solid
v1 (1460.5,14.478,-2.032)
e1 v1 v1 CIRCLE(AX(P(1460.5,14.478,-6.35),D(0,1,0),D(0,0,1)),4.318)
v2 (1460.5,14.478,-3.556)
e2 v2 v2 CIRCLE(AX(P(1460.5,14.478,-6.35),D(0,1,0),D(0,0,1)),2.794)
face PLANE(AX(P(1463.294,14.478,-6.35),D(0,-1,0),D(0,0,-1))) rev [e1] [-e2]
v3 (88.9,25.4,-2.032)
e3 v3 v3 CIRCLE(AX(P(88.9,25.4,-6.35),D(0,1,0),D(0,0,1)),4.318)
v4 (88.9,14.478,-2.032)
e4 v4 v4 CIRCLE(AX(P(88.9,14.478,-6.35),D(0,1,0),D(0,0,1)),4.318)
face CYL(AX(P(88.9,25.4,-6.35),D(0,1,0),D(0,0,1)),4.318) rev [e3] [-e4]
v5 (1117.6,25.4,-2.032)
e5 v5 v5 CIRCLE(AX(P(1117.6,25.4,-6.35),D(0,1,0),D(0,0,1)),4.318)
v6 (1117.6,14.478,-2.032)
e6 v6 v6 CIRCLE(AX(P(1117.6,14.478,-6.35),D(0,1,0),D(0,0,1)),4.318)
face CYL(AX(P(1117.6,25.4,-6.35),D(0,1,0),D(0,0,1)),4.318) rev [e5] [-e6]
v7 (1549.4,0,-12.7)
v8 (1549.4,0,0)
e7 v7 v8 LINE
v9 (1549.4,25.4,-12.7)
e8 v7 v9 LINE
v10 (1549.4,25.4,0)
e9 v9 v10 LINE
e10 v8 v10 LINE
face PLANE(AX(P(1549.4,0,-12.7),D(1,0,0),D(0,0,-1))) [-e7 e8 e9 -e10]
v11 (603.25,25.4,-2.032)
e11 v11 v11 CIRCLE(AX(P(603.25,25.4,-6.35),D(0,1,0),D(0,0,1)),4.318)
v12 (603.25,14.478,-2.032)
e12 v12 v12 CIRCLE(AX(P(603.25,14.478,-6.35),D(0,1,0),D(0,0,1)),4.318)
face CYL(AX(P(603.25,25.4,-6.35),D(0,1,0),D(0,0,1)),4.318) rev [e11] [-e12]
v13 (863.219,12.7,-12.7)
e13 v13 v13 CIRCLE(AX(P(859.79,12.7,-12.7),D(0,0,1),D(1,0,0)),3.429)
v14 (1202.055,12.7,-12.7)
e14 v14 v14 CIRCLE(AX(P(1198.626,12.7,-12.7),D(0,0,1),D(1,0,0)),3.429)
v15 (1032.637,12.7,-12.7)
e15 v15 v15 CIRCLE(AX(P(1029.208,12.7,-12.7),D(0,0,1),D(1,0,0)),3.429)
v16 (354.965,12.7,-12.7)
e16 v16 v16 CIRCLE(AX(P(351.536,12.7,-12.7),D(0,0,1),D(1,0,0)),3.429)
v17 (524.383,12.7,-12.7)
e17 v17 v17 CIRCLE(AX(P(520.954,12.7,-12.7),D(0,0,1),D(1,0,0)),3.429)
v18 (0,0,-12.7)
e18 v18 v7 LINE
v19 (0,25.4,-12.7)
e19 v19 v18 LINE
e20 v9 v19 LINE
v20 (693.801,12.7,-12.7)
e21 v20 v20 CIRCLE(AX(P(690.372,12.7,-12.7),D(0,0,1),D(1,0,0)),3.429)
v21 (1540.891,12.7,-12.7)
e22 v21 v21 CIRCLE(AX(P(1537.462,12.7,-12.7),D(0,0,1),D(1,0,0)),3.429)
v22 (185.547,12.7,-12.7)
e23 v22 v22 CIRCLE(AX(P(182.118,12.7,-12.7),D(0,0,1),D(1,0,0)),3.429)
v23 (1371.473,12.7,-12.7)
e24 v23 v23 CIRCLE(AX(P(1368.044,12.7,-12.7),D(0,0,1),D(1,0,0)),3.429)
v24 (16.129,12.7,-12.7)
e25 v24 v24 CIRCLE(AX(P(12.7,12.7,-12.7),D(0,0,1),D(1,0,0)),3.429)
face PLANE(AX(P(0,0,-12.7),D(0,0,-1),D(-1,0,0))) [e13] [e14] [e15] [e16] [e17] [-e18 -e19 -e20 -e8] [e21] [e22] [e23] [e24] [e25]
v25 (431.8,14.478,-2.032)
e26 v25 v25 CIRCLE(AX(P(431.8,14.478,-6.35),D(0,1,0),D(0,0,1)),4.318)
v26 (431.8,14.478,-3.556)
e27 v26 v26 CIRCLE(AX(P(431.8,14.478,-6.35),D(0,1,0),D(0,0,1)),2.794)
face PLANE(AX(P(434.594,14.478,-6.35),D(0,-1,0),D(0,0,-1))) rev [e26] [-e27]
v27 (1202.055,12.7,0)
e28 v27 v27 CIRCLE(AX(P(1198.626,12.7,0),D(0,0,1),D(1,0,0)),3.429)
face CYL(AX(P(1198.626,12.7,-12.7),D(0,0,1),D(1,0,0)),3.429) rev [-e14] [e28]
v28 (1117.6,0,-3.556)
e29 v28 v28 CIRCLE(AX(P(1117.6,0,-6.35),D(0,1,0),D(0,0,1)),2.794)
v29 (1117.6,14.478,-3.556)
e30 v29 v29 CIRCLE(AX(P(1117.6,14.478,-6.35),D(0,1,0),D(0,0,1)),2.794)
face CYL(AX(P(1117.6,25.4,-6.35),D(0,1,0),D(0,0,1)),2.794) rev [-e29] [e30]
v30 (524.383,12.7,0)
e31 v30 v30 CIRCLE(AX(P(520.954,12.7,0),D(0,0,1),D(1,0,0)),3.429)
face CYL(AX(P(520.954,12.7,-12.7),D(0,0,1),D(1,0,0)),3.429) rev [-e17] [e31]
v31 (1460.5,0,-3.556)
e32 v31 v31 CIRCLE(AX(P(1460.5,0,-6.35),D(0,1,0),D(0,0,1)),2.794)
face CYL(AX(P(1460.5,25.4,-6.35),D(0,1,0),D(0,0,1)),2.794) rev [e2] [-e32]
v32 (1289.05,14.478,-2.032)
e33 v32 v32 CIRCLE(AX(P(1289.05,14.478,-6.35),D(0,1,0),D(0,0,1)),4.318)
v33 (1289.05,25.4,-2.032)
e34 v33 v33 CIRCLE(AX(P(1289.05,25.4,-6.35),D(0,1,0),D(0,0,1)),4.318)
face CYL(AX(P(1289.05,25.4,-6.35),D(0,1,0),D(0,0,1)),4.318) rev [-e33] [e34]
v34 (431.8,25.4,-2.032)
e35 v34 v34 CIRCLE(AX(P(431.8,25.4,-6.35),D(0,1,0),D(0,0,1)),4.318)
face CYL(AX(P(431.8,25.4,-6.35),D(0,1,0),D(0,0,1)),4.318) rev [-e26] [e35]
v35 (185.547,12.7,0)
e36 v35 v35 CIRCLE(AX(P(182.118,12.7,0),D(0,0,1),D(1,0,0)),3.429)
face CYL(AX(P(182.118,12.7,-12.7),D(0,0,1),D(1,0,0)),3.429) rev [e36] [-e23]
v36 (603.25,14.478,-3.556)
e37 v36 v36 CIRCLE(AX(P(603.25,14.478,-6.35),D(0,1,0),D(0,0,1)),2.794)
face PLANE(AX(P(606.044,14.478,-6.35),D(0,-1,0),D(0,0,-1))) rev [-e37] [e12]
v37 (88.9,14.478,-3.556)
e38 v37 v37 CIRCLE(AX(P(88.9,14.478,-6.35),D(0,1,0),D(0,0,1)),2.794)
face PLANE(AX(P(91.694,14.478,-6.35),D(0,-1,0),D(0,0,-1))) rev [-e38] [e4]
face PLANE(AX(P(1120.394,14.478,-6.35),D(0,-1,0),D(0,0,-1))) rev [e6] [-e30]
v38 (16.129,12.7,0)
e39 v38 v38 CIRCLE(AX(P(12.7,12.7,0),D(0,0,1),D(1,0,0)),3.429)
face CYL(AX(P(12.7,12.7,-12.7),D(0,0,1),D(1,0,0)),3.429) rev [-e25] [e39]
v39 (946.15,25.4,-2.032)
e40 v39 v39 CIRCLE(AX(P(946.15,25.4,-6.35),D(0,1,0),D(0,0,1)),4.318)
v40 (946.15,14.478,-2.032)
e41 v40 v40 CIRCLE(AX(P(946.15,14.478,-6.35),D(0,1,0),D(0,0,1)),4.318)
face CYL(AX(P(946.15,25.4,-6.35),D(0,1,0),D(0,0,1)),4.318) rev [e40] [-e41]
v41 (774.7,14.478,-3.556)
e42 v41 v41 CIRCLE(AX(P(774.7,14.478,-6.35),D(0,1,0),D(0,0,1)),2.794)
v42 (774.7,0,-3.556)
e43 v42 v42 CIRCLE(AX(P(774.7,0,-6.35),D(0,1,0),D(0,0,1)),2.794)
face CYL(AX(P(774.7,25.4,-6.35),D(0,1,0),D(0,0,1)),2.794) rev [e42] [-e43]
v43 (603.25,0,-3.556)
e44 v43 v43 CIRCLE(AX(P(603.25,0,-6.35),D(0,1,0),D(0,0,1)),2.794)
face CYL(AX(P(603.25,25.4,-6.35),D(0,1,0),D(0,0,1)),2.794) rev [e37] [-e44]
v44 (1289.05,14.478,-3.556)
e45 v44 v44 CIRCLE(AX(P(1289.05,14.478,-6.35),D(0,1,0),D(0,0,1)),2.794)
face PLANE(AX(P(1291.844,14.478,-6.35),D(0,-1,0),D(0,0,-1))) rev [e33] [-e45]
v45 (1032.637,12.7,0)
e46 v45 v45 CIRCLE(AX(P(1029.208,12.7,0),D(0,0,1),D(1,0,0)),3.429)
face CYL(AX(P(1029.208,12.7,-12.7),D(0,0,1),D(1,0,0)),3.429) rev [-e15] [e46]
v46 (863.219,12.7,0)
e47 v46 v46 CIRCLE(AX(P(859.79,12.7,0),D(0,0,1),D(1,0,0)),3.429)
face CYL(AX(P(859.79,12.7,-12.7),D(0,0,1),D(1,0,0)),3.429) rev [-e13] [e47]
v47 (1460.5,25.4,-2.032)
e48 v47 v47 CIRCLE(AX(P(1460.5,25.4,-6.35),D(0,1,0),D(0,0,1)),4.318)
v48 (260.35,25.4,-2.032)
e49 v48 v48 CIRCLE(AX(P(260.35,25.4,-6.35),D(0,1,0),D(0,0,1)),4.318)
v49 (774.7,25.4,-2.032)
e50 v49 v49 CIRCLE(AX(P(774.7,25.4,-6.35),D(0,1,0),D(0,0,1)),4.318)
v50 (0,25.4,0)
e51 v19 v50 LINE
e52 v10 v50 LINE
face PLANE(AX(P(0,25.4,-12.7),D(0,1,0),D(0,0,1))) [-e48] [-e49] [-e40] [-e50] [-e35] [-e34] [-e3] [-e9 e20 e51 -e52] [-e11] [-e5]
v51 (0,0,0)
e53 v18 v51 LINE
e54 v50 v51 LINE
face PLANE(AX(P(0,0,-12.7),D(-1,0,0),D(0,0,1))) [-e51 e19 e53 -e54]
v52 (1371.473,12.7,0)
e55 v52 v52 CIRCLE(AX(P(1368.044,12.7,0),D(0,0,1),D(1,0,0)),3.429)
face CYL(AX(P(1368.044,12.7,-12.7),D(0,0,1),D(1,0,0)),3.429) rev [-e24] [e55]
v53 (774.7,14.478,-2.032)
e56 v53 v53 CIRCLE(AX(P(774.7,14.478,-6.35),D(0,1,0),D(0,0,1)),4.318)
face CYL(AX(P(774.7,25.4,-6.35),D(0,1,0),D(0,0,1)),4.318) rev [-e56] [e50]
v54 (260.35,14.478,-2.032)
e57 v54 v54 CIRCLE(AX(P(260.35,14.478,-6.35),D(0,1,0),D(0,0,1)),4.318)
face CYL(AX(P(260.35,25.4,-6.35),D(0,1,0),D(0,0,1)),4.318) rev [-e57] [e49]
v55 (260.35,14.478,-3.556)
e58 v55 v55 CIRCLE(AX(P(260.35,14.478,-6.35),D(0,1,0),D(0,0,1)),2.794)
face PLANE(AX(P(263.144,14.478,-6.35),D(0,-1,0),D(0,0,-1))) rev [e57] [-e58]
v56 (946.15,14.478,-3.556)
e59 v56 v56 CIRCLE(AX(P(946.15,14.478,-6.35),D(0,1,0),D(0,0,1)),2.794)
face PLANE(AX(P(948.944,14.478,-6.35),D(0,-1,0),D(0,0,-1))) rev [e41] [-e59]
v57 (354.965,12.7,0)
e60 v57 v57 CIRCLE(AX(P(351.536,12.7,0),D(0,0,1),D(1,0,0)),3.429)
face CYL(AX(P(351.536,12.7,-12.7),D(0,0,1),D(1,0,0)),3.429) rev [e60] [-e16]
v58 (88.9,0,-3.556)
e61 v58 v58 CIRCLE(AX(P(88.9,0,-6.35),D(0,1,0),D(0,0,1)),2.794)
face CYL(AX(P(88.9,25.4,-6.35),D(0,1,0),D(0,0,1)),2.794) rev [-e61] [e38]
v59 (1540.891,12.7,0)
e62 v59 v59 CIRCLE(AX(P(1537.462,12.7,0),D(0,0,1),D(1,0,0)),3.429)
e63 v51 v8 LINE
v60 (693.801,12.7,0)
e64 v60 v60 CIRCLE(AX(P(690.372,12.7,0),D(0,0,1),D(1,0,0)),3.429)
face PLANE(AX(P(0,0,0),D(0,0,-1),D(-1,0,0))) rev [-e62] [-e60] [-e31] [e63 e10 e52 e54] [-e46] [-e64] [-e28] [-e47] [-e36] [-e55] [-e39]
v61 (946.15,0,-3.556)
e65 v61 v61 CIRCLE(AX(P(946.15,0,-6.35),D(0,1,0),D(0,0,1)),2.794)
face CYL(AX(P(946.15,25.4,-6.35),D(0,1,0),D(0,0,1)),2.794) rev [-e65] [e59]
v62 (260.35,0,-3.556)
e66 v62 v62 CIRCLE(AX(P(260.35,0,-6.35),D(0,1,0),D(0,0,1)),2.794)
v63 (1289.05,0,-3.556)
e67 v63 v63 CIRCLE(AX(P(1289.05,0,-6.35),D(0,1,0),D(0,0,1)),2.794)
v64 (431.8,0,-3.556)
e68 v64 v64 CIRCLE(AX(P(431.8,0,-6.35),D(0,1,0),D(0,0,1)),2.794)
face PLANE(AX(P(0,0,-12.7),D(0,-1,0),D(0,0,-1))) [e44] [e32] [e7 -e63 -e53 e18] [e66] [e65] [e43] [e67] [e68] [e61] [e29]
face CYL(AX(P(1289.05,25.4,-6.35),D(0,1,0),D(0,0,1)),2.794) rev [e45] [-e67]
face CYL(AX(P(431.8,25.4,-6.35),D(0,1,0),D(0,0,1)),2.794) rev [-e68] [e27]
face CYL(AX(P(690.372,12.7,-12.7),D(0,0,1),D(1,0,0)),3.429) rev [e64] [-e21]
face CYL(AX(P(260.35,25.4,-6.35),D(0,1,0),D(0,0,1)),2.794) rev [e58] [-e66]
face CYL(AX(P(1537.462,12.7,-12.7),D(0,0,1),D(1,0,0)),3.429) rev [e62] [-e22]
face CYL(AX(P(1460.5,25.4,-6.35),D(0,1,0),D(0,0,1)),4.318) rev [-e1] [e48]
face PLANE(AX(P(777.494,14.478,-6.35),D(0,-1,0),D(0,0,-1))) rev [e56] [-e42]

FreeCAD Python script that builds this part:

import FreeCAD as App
import Part
import Sketcher
from FreeCAD import Vector
Q = App.Units.Quantity


def add_polygon(sketch, points):
    """Adds a closed chain of lines whose ends are joined by coincident constraints."""
    first, n = sketch.GeometryCount, len(points)
    for a, b in zip(points, points[1:] + points[:1]):
        sketch.addGeometry(Part.LineSegment(App.Vector(*a, 0), App.Vector(*b, 0)), False)
    for i in range(n):
        sketch.addConstraint(Sketcher.Constraint("Coincident", first + i, 2, first + (i + 1) % n, 1))

doc = App.newDocument("Part")
body = doc.addObject("PartDesign::Body", "Body")

# Sketch on XY plane
sketch1 = doc.addObject("Sketcher::SketchObject", "Sketch")
body.addObject(sketch1)
sketch1.AttachmentSupport = (doc.XY_Plane, [""])
sketch1.MapMode = "FlatFace"
add_polygon(sketch1, [(0, 25.4), (0, 0), (1549.4, 0), (1549.4, 25.4)])  # lines 0-3
sketch1.addGeometry(Part.Circle(Vector(12.7, 12.7, 0), Vector(0, 0, 1), 3.4), False)  # 4
sketch1.addGeometry(Part.Circle(Vector(182.1, 12.7, 0), Vector(0, 0, 1), 3.4), False)  # 5
sketch1.addGeometry(Part.Circle(Vector(351.5, 12.7, 0), Vector(0, 0, 1), 3.4), False)  # 6
sketch1.addGeometry(Part.Circle(Vector(521, 12.7, 0), Vector(0, 0, 1), 3.4), False)  # 7
sketch1.addGeometry(Part.Circle(Vector(690.4, 12.7, 0), Vector(0, 0, 1), 3.4), False)  # 8
sketch1.addGeometry(Part.Circle(Vector(859.8, 12.7, 0), Vector(0, 0, 1), 3.4), False)  # 9
sketch1.addGeometry(Part.Circle(Vector(1029.2, 12.7, 0), Vector(0, 0, 1), 3.4), False)  # 10
sketch1.addGeometry(Part.Circle(Vector(1198.6, 12.7, 0), Vector(0, 0, 1), 3.4), False)  # 11
sketch1.addGeometry(Part.Circle(Vector(1368, 12.7, 0), Vector(0, 0, 1), 3.4), False)  # 12
sketch1.addGeometry(Part.Circle(Vector(1537.5, 12.7, 0), Vector(0, 0, 1), 3.4), False)  # 13
sketch1.addConstraint(Sketcher.Constraint("Vertical", 0))
sketch1.addConstraint(Sketcher.Constraint("Horizontal", 1))
sketch1.addConstraint(Sketcher.Constraint("Vertical", 2))
sketch1.addConstraint(Sketcher.Constraint("Horizontal", 3))
sketch1.addConstraint(Sketcher.Constraint("Coincident", 0, 2, -1, 1))
sketch1.addConstraint(Sketcher.Constraint("Equal", 4, 5))
sketch1.addConstraint(Sketcher.Constraint("Equal", 5, 6))
sketch1.addConstraint(Sketcher.Constraint("Equal", 6, 7))
sketch1.addConstraint(Sketcher.Constraint("Equal", 7, 8))
sketch1.addConstraint(Sketcher.Constraint("Equal", 8, 9))
sketch1.addConstraint(Sketcher.Constraint("Equal", 9, 10))
sketch1.addConstraint(Sketcher.Constraint("Equal", 10, 11))
sketch1.addConstraint(Sketcher.Constraint("Equal", 11, 12))
sketch1.addConstraint(Sketcher.Constraint("Equal", 12, 13))
sketch1.addConstraint(Sketcher.Constraint("Horizontal", 4, 3, 5, 3))
sketch1.addConstraint(Sketcher.Constraint("Horizontal", 5, 3, 6, 3))
sketch1.addConstraint(Sketcher.Constraint("Horizontal", 6, 3, 7, 3))
sketch1.addConstraint(Sketcher.Constraint("Horizontal", 7, 3, 8, 3))
sketch1.addConstraint(Sketcher.Constraint("Horizontal", 8, 3, 9, 3))
sketch1.addConstraint(Sketcher.Constraint("Horizontal", 9, 3, 10, 3))
sketch1.addConstraint(Sketcher.Constraint("Horizontal", 10, 3, 11, 3))
sketch1.addConstraint(Sketcher.Constraint("Horizontal", 11, 3, 12, 3))
sketch1.addConstraint(Sketcher.Constraint("Horizontal", 12, 3, 13, 3))
sketch1.addConstraint(Sketcher.Constraint("Diameter", 4, Q("0.27 in")))
sketch1.addConstraint(Sketcher.Constraint("DistanceX", 1, 1, 1, 2, Q("61 in")))
sketch1.addConstraint(Sketcher.Constraint("DistanceY", 0, 2, 0, 1, Q("1 in")))
sketch1.addConstraint(Sketcher.Constraint("DistanceX", -1, 1, 4, 3, Q("0.5 in")))
sketch1.addConstraint(Sketcher.Constraint("DistanceY", -1, 1, 4, 3, Q("0.5 in")))
sketch1.addConstraint(Sketcher.Constraint("DistanceX", -1, 1, 5, 3, Q("7.17 in")))
sketch1.addConstraint(Sketcher.Constraint("DistanceX", -1, 1, 6, 3, Q("13.84 in")))
sketch1.addConstraint(Sketcher.Constraint("DistanceX", -1, 1, 7, 3, Q("20.51 in")))
sketch1.addConstraint(Sketcher.Constraint("DistanceX", -1, 1, 8, 3, Q("27.18 in")))
sketch1.addConstraint(Sketcher.Constraint("DistanceX", -1, 1, 9, 3, Q("33.85 in")))
sketch1.addConstraint(Sketcher.Constraint("DistanceX", -1, 1, 10, 3, Q("40.52 in")))
sketch1.addConstraint(Sketcher.Constraint("DistanceX", -1, 1, 11, 3, Q("47.19 in")))
sketch1.addConstraint(Sketcher.Constraint("DistanceX", -1, 1, 12, 3, Q("53.86 in")))
sketch1.addConstraint(Sketcher.Constraint("DistanceX", -1, 1, 13, 3, Q("60.53 in")))
pad1 = doc.addObject("PartDesign::Pad", "Pad")
body.addObject(pad1)
pad1.Profile = sketch1
pad1.Length = Q("0.5 in")
pad1.Reversed = True

# Sketch on XZ plane
sketch2 = doc.addObject("Sketcher::SketchObject", "Sketch001")
body.addObject(sketch2)
sketch2.AttachmentSupport = (doc.XZ_Plane, [""])
sketch2.MapMode = "FlatFace"
sketch2.AttachmentOffset = App.Placement(Vector(0, 0, -1 * 25.4), App.Rotation())
sketch2.addGeometry(Part.Circle(Vector(88.9, -6.3, 0), Vector(0, 0, 1), 2.8), False)
sketch2.addConstraint(Sketcher.Constraint("Diameter", 0, Q("0.22 in")))
sketch2.addConstraint(Sketcher.Constraint("DistanceX", -1, 1, 0, 3, Q("3.5 in")))
sketch2.addConstraint(Sketcher.Constraint("DistanceY", 0, 3, -1, 1, Q("0.25 in")))
doc.recompute()
hole = doc.addObject("PartDesign::Hole", "Hole")
body.addObject(hole)
hole.Profile = sketch2
hole.ThreadType = "None"
hole.Diameter = Q("0.22 in")
hole.DepthType = "ThroughAll"
hole.HoleCutType = "Counterbore"
hole.HoleCutDiameter = Q("0.34 in")
hole.HoleCutDepth = Q("0.43 in")
hole.Reversed = True
doc.recompute()

linearpattern = doc.addObject("PartDesign::LinearPattern", "LinearPattern")
body.addObject(linearpattern)
linearpattern.Originals = [hole]
linearpattern.Direction = (doc.X_Axis, [""])
linearpattern.Mode = "offset"
linearpattern.Offset = Q("6.75 in")
linearpattern.Occurrences = 9
body.Tip = linearpattern

# Sketch on YZ plane
sketch3 = doc.addObject("Sketcher::SketchObject", "Sketch002")
body.addObject(sketch3)
sketch3.AttachmentSupport = (doc.YZ_Plane, [""])
sketch3.MapMode = "FlatFace"
sketch3.AttachmentOffset = App.Placement(Vector(0, 0, 3.5 * 25.4), App.Rotation())
add_polygon(sketch3, [(25.4, -6.35), (0, -6.35), (0, -8.89), (9.91, -8.89), (9.91, -9.14), (25.4, -9.14)])  # lines 0-5
sketch3.addGeometry(Part.LineSegment(Vector(25.4, -6.35, 0), Vector(0, -6.35, 0)), True)  # axis
sketch3.addConstraint(Sketcher.Constraint("Horizontal", 0))
sketch3.addConstraint(Sketcher.Constraint("Vertical", 1))
sketch3.addConstraint(Sketcher.Constraint("Horizontal", 2))
sketch3.addConstraint(Sketcher.Constraint("Vertical", 3))
sketch3.addConstraint(Sketcher.Constraint("Horizontal", 4))
sketch3.addConstraint(Sketcher.Constraint("Vertical", 5))
sketch3.addConstraint(Sketcher.Constraint("Horizontal", 6))
sketch3.addConstraint(Sketcher.Constraint("Coincident", 6, 1, 5, 2))
sketch3.addConstraint(Sketcher.Constraint("PointOnObject", 0, 2, -2))
sketch3.addConstraint(Sketcher.Constraint("PointOnObject", 6, 2, -2))
sketch3.addConstraint(Sketcher.Constraint("DistanceX", 0, 2, 0, 1, Q("1 in")))
sketch3.addConstraint(Sketcher.Constraint("DistanceY", 1, 2, 1, 1, Q("0.1 in")))
sketch3.addConstraint(Sketcher.Constraint("DistanceX", 2, 1, 2, 2, Q("0.39 in")))
sketch3.addConstraint(Sketcher.Constraint("DistanceY", 3, 2, 3, 1, Q("0.01 in")))
sketch3.addConstraint(Sketcher.Constraint("DistanceY", 0, 2, -1, 1, Q("0.25 in")))
groove = doc.addObject("PartDesign::Groove", "Groove")
body.addObject(groove)
groove.Profile = sketch3
groove.ReferenceAxis = (sketch3, ["Axis0"])
groove.Angle = 360
doc.recompute()

linearpattern2 = doc.addObject("PartDesign::LinearPattern", "LinearPattern001")
body.addObject(linearpattern2)
linearpattern2.Originals = [groove]
linearpattern2.Direction = (doc.X_Axis, [""])
linearpattern2.Mode = "offset"
linearpattern2.Offset = Q("6.75 in")
linearpattern2.Occurrences = 9
body.Tip = linearpattern2

doc.recompute()
